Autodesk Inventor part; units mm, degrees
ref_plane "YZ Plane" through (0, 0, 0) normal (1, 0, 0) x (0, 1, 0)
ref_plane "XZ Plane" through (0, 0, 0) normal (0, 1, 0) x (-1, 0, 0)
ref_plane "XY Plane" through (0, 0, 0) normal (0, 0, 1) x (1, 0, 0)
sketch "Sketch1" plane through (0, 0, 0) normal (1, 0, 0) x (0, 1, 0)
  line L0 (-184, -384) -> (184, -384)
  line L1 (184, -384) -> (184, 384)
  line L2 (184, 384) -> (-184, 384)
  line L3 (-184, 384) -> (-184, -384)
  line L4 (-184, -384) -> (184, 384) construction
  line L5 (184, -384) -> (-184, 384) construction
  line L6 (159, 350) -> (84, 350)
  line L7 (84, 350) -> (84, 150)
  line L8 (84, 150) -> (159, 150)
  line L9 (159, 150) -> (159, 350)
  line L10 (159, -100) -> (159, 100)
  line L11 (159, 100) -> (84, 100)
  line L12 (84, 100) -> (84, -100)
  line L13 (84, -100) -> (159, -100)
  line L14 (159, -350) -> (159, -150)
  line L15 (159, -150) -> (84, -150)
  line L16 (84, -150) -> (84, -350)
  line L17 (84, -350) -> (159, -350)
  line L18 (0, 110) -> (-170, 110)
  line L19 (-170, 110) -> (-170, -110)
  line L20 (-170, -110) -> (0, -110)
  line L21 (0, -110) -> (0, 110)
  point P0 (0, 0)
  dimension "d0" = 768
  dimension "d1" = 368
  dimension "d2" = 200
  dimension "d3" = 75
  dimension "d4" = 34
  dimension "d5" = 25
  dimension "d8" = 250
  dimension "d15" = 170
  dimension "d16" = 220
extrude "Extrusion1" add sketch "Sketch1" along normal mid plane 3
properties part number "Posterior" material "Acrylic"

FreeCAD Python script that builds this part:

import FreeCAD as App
import Part
import Sketcher
from FreeCAD import Vector
Q = App.Units.Quantity


def add_polygon(sketch, points):
    """Adds a closed chain of lines whose ends are joined by coincident constraints."""
    first, n = sketch.GeometryCount, len(points)
    for a, b in zip(points, points[1:] + points[:1]):
        sketch.addGeometry(Part.LineSegment(App.Vector(*a, 0), App.Vector(*b, 0)), False)
    for i in range(n):
        sketch.addConstraint(Sketcher.Constraint("Coincident", first + i, 2, first + (i + 1) % n, 1))

doc = App.newDocument("Part")
params = doc.addObject("Spreadsheet::Sheet", "Params")
for row, (alias, value) in enumerate([
    ("sketch1_width", "368 mm"),
    ("sketch1_width2", "75 mm"),
    ("sketch1_width3", "170 mm"),
    ("sketch1_height", "768 mm"),
    ("sketch1_height2", "200 mm"),
    ("pad1_length", "3 mm"),
], start=1):
    params.set(f"A{row}", alias)
    params.set(f"B{row}", "=" + value)
    params.setAlias(f"B{row}", alias)

body = doc.addObject("PartDesign::Body", "Body")

sketch1 = body.newObject("Sketcher::SketchObject", "Sketch")
sketch1.AttachmentSupport = (doc.getObject("YZ_Plane"), [""])
sketch1.MapMode = "FlatFace"
add_polygon(sketch1, [(-184, 384), (-184, -384), (184, -384), (184, 384)])
add_polygon(sketch1, [(159, -150), (159, -350), (84, -350), (84, -150)])
add_polygon(sketch1, [(-170, 110), (0, 110), (0, -110), (-170, -110)])
add_polygon(sketch1, [(159, 100), (159, -100), (84, -100), (84, 100)])
add_polygon(sketch1, [(84, 350), (159, 350), (159, 150), (84, 150)])
sketch1.addConstraint(Sketcher.Constraint("Vertical", 0))
sketch1.addConstraint(Sketcher.Constraint("Horizontal", 1))
sketch1.addConstraint(Sketcher.Constraint("Vertical", 2))
sketch1.addConstraint(Sketcher.Constraint("Horizontal", 3))
sketch1.addConstraint(Sketcher.Constraint("Vertical", 4))
sketch1.addConstraint(Sketcher.Constraint("Horizontal", 5))
sketch1.addConstraint(Sketcher.Constraint("Vertical", 6))
sketch1.addConstraint(Sketcher.Constraint("Horizontal", 7))
sketch1.addConstraint(Sketcher.Constraint("Horizontal", 8))
sketch1.addConstraint(Sketcher.Constraint("Vertical", 9))
sketch1.addConstraint(Sketcher.Constraint("Horizontal", 10))
sketch1.addConstraint(Sketcher.Constraint("Vertical", 11))
sketch1.addConstraint(Sketcher.Constraint("Vertical", 12))
sketch1.addConstraint(Sketcher.Constraint("Horizontal", 13))
sketch1.addConstraint(Sketcher.Constraint("Vertical", 14))
sketch1.addConstraint(Sketcher.Constraint("Horizontal", 15))
sketch1.addConstraint(Sketcher.Constraint("Horizontal", 16))
sketch1.addConstraint(Sketcher.Constraint("Vertical", 17))
sketch1.addConstraint(Sketcher.Constraint("Horizontal", 18))
sketch1.addConstraint(Sketcher.Constraint("Vertical", 19))
sketch1.addConstraint(Sketcher.Constraint("Symmetric", 0, 2, 2, 2, -1, 1))
sketch1.addConstraint(Sketcher.Constraint("Symmetric", 8, 2, 9, 2, -1, 1))
sketch1.addConstraint(Sketcher.Constraint("Symmetric", 4, 2, 16, 2, -1))
sketch1.addConstraint(Sketcher.Constraint("Symmetric", 6, 2, 18, 2, -1))
sketch1.addConstraint(Sketcher.Constraint("Vertical", 7, 2, 12, 2))
sketch1.addConstraint(Sketcher.Constraint("Vertical", 6, 2, 13, 2))
sketch1.addConstraint(Sketcher.Constraint("Equal", 6, 12))
sketch1.addConstraint(Sketcher.Constraint("DistanceX", 1, 1, 1, 2, Q("368 mm")))
sketch1.addConstraint(Sketcher.Constraint("DistanceX", 5, 2, 5, 1, Q("75 mm")))
sketch1.addConstraint(Sketcher.Constraint("DistanceX", 8, 1, 8, 2, Q("170 mm")))
sketch1.addConstraint(Sketcher.Constraint("DistanceY", 0, 2, 0, 1, Q("768 mm")))
sketch1.addConstraint(Sketcher.Constraint("DistanceY", 4, 2, 4, 1, Q("200 mm")))
sketch1.addConstraint(Sketcher.Constraint("DistanceY", 9, 2, 9, 1, Q("220 mm")))
sketch1.addConstraint(Sketcher.Constraint("DistanceX", 4, 2, 1, 2, Q("25 mm")))
sketch1.addConstraint(Sketcher.Constraint("DistanceY", 1, 2, 4, 2, Q("34 mm")))
sketch1.addConstraint(Sketcher.Constraint("DistanceY", 4, 2, 12, 2, Q("250 mm")))
sketch1.setExpression("Constraints[47]", "Params.sketch1_width")
sketch1.setExpression("Constraints[48]", "Params.sketch1_width2")
sketch1.setExpression("Constraints[49]", "Params.sketch1_width3")
sketch1.setExpression("Constraints[50]", "Params.sketch1_height")
sketch1.setExpression("Constraints[51]", "Params.sketch1_height2")
pad1 = body.newObject("PartDesign::Pad", "Pad")
pad1.Profile = sketch1
pad1.setExpression("Length", "Params.pad1_length")
pad1.Midplane = True

doc.recompute()
